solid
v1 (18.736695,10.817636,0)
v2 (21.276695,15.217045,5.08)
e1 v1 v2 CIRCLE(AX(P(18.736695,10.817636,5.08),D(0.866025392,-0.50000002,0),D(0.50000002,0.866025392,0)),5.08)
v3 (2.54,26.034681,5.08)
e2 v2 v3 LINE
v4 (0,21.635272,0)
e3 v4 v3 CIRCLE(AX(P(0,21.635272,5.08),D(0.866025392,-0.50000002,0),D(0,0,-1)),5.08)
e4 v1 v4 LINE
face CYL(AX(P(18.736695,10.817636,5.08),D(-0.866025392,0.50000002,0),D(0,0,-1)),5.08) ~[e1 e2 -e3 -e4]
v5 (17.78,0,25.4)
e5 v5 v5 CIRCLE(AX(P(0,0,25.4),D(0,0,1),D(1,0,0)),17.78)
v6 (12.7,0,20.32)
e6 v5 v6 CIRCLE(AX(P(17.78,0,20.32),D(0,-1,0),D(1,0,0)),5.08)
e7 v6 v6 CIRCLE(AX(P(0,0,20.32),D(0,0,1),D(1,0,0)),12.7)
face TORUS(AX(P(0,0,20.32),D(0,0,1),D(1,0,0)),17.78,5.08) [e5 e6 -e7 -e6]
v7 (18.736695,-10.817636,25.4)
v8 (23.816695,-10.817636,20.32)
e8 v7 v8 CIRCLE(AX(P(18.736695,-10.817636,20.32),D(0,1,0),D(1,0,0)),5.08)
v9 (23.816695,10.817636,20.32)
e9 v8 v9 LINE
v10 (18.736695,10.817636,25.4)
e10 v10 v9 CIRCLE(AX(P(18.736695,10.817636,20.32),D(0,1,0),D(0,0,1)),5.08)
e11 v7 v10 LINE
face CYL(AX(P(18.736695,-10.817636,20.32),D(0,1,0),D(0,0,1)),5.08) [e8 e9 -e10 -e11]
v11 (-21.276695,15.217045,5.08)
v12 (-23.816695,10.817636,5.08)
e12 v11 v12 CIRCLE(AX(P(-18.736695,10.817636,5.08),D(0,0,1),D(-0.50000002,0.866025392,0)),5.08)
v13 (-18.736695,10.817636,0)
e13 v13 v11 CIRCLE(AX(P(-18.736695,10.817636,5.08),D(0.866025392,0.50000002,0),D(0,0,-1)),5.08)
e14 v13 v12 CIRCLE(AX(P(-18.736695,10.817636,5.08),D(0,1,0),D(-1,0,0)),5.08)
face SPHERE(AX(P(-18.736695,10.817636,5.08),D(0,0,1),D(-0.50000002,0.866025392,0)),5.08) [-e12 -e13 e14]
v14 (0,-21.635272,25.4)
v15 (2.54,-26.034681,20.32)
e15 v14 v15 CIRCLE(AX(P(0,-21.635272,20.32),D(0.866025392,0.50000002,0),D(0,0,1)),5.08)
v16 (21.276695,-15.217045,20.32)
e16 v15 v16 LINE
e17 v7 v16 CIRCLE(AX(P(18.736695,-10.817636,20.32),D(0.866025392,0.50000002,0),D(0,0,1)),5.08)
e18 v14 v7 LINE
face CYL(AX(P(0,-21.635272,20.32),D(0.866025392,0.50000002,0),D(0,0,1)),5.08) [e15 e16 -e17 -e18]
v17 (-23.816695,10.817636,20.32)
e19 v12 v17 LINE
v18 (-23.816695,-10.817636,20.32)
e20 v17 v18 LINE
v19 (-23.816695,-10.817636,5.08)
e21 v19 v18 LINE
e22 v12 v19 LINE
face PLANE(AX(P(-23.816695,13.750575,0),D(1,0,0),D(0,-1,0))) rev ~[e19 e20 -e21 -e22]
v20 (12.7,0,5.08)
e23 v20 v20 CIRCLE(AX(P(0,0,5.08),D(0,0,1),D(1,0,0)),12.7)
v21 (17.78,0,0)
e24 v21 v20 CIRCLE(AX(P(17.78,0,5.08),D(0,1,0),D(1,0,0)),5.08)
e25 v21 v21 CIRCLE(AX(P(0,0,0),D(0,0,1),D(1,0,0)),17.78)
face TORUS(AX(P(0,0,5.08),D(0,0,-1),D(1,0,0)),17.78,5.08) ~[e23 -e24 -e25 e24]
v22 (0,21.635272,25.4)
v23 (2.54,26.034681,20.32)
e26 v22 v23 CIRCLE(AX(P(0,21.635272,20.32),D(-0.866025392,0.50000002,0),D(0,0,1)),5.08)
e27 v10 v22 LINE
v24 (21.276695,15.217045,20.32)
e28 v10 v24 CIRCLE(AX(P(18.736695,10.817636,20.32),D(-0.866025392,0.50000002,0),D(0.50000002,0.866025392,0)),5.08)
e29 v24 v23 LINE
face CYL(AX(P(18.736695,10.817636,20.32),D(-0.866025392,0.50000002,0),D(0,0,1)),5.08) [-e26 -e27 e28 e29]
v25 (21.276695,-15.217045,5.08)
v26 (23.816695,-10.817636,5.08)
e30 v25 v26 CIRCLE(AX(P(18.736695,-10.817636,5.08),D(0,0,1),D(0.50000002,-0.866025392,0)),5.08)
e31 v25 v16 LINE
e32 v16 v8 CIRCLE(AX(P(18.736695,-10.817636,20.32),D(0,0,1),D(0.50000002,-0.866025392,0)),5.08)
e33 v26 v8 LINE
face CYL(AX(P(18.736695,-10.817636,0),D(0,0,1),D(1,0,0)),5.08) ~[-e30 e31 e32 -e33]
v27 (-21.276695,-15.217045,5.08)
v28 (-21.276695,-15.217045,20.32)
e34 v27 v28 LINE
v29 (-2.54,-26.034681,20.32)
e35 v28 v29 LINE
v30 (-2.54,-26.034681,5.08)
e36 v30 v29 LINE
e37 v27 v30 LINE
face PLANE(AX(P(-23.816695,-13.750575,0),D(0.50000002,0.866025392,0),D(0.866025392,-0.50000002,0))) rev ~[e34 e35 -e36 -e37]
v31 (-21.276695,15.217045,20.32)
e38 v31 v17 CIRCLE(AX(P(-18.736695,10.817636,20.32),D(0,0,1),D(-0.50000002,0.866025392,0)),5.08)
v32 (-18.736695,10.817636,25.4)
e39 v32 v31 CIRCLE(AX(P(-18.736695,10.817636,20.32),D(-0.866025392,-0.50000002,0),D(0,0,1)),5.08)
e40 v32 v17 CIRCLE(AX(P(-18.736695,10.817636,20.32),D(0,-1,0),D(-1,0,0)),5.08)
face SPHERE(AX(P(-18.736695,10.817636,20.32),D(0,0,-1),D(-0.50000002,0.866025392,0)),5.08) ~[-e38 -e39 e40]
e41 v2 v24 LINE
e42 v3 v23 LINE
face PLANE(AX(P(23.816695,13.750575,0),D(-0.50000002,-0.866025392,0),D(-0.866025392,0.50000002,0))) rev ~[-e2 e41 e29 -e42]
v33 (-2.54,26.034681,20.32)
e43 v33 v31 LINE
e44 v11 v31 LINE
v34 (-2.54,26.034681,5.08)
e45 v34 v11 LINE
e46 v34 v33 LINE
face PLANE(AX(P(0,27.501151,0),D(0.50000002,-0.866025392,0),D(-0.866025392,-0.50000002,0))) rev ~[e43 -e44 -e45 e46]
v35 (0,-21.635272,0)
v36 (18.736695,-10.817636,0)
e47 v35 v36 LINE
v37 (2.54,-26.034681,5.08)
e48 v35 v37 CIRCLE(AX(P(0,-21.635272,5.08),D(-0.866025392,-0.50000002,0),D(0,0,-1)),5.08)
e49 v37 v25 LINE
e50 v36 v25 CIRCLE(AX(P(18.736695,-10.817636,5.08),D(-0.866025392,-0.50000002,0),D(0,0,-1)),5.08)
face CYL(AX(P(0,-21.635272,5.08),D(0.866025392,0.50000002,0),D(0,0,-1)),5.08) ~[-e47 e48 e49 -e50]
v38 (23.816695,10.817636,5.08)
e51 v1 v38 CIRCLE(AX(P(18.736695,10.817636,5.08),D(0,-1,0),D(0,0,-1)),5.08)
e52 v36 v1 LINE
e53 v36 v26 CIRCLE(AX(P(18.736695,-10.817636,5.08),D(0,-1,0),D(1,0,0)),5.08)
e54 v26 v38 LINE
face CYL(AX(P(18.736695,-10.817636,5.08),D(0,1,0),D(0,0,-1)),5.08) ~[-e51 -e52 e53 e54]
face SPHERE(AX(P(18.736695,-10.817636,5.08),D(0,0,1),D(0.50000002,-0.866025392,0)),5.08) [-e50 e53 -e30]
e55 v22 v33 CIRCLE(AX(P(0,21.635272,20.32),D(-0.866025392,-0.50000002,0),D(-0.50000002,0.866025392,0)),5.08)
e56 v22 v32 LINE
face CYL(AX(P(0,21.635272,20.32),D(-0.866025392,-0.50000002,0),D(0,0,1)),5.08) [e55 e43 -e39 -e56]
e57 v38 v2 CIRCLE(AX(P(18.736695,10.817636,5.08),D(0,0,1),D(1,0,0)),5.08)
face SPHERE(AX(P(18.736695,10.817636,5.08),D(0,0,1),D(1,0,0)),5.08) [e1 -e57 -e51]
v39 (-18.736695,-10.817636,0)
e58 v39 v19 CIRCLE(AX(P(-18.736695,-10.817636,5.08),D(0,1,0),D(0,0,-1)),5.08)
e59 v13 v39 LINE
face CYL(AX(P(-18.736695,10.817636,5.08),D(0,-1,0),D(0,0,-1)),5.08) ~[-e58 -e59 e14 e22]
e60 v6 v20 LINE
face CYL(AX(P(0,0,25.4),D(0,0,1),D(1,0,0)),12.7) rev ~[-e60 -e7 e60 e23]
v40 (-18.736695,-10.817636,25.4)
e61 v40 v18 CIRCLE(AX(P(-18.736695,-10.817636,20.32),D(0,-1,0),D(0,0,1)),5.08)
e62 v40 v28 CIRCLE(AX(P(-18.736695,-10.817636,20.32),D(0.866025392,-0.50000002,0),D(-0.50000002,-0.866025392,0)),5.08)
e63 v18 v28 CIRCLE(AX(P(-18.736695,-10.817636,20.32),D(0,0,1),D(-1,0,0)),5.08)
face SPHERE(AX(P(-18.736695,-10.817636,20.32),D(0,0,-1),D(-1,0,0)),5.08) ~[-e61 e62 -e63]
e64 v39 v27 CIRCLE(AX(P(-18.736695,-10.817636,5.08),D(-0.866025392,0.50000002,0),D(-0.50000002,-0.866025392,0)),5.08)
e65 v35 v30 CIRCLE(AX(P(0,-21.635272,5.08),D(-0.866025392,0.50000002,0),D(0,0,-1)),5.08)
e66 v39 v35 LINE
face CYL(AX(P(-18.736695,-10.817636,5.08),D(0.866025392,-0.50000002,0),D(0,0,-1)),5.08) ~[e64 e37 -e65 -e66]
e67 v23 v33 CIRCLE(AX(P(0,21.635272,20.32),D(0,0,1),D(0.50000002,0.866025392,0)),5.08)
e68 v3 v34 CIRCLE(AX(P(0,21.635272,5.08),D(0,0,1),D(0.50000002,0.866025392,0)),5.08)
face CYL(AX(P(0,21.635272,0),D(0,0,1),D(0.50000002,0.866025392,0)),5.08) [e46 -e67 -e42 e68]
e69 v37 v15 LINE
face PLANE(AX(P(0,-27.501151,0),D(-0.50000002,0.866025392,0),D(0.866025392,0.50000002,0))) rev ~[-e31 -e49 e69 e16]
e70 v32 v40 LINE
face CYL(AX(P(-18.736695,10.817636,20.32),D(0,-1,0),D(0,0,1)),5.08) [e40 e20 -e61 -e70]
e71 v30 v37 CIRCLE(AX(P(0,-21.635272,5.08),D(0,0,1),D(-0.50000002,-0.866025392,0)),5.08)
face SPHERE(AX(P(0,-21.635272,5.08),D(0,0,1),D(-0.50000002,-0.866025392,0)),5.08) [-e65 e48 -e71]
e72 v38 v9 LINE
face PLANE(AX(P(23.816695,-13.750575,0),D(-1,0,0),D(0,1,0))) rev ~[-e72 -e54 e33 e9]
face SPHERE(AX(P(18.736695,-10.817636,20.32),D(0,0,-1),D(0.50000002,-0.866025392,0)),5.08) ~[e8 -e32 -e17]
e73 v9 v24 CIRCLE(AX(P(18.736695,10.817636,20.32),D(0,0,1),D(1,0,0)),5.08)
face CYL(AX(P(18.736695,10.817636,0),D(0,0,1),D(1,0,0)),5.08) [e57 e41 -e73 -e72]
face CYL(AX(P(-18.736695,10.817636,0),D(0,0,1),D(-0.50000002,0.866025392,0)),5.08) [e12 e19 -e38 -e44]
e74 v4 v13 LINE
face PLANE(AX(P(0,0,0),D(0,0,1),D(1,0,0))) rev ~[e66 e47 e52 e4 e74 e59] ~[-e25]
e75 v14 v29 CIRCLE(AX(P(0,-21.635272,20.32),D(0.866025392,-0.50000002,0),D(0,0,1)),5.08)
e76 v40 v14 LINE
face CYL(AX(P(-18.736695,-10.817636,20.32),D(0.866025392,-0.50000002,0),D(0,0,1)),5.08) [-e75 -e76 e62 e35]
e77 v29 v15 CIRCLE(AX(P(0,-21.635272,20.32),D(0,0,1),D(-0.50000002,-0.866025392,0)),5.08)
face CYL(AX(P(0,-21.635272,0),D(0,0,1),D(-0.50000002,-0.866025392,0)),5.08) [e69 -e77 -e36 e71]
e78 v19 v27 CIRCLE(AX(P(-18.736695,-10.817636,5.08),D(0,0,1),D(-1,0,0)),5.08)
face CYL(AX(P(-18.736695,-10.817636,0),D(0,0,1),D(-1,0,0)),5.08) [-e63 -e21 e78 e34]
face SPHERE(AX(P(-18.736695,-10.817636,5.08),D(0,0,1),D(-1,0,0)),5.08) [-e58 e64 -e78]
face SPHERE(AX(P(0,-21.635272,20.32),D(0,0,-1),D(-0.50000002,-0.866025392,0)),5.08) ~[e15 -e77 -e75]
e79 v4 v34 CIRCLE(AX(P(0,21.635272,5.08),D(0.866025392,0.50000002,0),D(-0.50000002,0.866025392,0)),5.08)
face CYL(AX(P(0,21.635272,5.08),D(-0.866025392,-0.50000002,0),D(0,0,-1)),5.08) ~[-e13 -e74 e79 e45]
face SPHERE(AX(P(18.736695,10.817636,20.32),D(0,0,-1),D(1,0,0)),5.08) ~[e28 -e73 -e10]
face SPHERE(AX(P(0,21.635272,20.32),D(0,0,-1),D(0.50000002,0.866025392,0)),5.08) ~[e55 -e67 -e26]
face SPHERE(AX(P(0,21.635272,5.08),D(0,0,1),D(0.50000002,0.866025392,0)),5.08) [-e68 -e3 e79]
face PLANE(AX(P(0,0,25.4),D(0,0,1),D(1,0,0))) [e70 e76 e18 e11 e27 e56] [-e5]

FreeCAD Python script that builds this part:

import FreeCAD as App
import Part
import Sketcher
from FreeCAD import Vector
Q = App.Units.Quantity


def edges_at(feature, points):
    """Names of the edges that pass closest to the given points."""
    edges = feature.Shape.Edges
    near = lambda p: min(range(len(edges)), key=lambda i: edges[i].distToShape(Part.Vertex(*p))[0])
    return sorted({f"Edge{near(p) + 1}" for p in points})

doc = App.newDocument("Part")
body = doc.addObject("PartDesign::Body", "Body")

# Sketch on XY plane
sketch1 = body.newObject("Sketcher::SketchObject", "Sketch")
sketch1.AttachmentSupport = (doc.getObject("XY_Plane"), [""])
sketch1.MapMode = "FlatFace"
sketch1.addGeometry(Part.LineSegment(Vector(24, -14, 0), Vector(24, 14, 0)), False)
sketch1.addGeometry(Part.LineSegment(Vector(24, 14, 0), Vector(0, 28, 0)), False)
sketch1.addGeometry(Part.LineSegment(Vector(0, 28, 0), Vector(-24, 14, 0)), False)
sketch1.addGeometry(Part.LineSegment(Vector(-24, 14, 0), Vector(-24, -14, 0)), False)
sketch1.addGeometry(Part.LineSegment(Vector(-24, -14, 0), Vector(0, -28, 0)), False)
sketch1.addGeometry(Part.LineSegment(Vector(0, -28, 0), Vector(24, -14, 0)), False)
sketch1.addConstraint(Sketcher.Constraint("Coincident", 0, 2, 1, 1))
sketch1.addConstraint(Sketcher.Constraint("Coincident", 1, 2, 2, 1))
sketch1.addConstraint(Sketcher.Constraint("Coincident", 2, 2, 3, 1))
sketch1.addConstraint(Sketcher.Constraint("Coincident", 3, 2, 4, 1))
sketch1.addConstraint(Sketcher.Constraint("Coincident", 4, 2, 5, 1))
sketch1.addConstraint(Sketcher.Constraint("Coincident", 5, 2, 0, 1))
sketch1.addConstraint(Sketcher.Constraint("Vertical", 0))
sketch1.addConstraint(Sketcher.Constraint("Vertical", 3))
sketch1.addConstraint(Sketcher.Constraint("Symmetric", 0, 2, 3, 2, -1, 1))
sketch1.addConstraint(Sketcher.Constraint("Symmetric", 1, 2, 4, 2, -1, 1))
sketch1.addConstraint(Sketcher.Constraint("PointOnObject", 1, 2, -2))
sketch1.addConstraint(Sketcher.Constraint("Parallel", 2, 5))
sketch1.addConstraint(Sketcher.Constraint("Horizontal", 0, 2, 2, 2))
sketch1.addConstraint(Sketcher.Constraint("Angle", 1, Q("149.999999 deg")))
sketch1.addConstraint(Sketcher.Constraint("DistanceY", 0, 1, 0, 2, 27.50115))
sketch1.addConstraint(Sketcher.Constraint("Distance", 1, 27.501151))
pad1 = body.newObject("PartDesign::Pad", "Pad")
pad1.Profile = sketch1
pad1.Length = Q("1 in")
doc.recompute()

fillet = body.newObject("PartDesign::Fillet", "Fillet")
fillet.Base = (pad1, edges_at(pad1, [
    (23.817, 13.751, 12.7),
    (0, 27.501, 12.7),
    (23.817, -13.751, 12.7),
    (0, -27.501, 12.7),
    (-23.817, -13.751, 12.7),
    (-23.817, 13.751, 12.7),
]))
fillet.Radius = Q("0.2 in")
doc.recompute()

fillet2 = body.newObject("PartDesign::Fillet", "Fillet001")
fillet2.Base = (fillet, edges_at(fillet, [
    (11.908, -20.626, 25.4),
    (0, -26.715, 25.4),
    (23.136, -13.358, 25.4),
    (-11.908, -20.626, 25.4),
    (23.817, 0, 25.4),
    (-23.136, -13.358, 25.4),
    (23.136, 13.358, 25.4),
    (-23.817, 0, 25.4),
    (11.908, 20.626, 25.4),
    (-23.136, 13.358, 25.4),
    (0, 26.715, 25.4),
    (-11.908, 20.626, 25.4),
    (11.908, -20.626, 0),
    (0, -26.715, 0),
    (23.136, -13.358, 0),
    (-11.908, -20.626, 0),
    (23.817, 0, 0),
    (-23.136, -13.358, 0),
    (23.136, 13.358, 0),
    (-23.817, 0, 0),
    (11.908, 20.626, 0),
    (-23.136, 13.358, 0),
    (0, 26.715, 0),
    (-11.908, 20.626, 0),
]))
fillet2.Radius = Q("0.2 in")

# Sketch on XY plane
sketch2 = body.newObject("Sketcher::SketchObject", "Sketch001")
sketch2.AttachmentSupport = (doc.getObject("XY_Plane"), [""])
sketch2.MapMode = "FlatFace"
sketch2.AttachmentOffset = App.Placement(Vector(0, 0, 1 * 25.4), App.Rotation())
sketch2.addGeometry(Part.Circle(Vector(0, 0, 0), Vector(0, 0, 1), 13), False)
sketch2.addConstraint(Sketcher.Constraint("Coincident", 0, 3, -1, 1))
sketch2.addConstraint(Sketcher.Constraint("Diameter", 0, Q("1 in")))
pocket1 = body.newObject("PartDesign::Pocket", "Pocket")
pocket1.Profile = sketch2
pocket1.Type = "ThroughAll"
doc.recompute()

fillet3 = body.newObject("PartDesign::Fillet", "Fillet002")
fillet3.Base = (pocket1, edges_at(pocket1, [(-12.7, 0, 25.4), (12.7, 0, 12.7), (-12.7, 0, 0)]))
fillet3.Radius = Q("0.2 in")

doc.recompute()
